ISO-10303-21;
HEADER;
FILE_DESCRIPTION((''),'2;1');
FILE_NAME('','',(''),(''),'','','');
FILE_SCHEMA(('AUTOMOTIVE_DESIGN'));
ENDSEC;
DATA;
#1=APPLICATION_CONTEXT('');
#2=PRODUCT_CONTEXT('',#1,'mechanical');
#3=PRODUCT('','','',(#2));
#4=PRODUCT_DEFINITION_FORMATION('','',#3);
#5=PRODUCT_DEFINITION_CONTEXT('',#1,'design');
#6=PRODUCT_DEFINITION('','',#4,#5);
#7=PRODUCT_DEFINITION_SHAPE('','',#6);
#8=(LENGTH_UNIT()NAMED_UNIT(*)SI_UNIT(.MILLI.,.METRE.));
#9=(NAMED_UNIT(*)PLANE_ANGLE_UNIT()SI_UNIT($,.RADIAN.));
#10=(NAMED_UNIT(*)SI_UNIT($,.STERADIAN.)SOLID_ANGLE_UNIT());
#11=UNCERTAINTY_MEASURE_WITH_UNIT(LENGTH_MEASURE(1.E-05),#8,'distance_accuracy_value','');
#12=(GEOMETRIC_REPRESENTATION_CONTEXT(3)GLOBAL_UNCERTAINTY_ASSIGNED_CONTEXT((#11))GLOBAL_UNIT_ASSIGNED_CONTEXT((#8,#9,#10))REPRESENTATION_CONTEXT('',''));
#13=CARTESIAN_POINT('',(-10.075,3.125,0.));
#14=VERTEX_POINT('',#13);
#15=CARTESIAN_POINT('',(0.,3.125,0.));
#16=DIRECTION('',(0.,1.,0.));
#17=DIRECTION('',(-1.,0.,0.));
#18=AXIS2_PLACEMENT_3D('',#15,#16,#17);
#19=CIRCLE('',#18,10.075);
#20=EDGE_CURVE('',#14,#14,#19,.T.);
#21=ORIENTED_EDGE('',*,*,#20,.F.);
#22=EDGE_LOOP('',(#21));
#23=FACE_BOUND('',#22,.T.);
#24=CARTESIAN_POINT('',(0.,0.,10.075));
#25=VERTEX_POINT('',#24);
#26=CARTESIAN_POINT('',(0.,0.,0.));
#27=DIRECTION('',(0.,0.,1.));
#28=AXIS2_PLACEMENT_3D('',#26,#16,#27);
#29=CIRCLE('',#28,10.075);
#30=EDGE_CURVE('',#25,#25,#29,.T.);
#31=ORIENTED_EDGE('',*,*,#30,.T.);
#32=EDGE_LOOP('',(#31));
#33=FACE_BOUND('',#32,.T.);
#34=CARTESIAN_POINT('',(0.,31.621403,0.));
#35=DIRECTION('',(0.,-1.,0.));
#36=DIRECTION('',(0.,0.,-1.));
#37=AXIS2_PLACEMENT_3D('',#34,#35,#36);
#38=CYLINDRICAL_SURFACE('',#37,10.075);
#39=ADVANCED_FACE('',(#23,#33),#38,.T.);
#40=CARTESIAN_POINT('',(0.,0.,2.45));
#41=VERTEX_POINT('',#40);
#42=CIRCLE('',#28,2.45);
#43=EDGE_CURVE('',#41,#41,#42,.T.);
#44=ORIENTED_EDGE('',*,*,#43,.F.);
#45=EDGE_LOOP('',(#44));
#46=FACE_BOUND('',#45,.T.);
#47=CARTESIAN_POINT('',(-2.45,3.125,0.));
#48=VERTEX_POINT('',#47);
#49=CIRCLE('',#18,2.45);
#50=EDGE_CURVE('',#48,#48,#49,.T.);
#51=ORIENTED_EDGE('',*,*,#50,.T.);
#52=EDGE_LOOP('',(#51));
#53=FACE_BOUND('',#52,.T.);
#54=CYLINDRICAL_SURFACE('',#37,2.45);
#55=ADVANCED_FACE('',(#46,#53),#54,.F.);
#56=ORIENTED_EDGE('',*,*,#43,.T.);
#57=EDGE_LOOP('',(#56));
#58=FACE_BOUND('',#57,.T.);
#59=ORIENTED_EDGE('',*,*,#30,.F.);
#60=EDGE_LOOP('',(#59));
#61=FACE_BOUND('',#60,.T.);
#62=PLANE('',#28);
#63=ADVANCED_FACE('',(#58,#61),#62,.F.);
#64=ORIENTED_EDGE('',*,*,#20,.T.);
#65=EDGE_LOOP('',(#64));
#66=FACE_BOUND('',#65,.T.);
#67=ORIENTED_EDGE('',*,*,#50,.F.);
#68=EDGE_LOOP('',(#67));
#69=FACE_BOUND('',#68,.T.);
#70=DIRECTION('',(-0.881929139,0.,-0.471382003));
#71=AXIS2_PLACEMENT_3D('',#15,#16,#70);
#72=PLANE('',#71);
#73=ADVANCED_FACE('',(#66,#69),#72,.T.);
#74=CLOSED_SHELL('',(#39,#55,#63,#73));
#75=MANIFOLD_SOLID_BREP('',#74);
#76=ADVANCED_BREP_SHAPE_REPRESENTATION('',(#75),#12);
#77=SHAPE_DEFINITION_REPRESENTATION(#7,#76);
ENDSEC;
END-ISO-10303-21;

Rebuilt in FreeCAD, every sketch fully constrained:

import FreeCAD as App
import Part
import Sketcher
from FreeCAD import Vector

doc = App.newDocument("Part")
body = doc.addObject("PartDesign::Body", "Body")

# Sketch on XZ plane
sketch1 = body.newObject("Sketcher::SketchObject", "Sketch")
sketch1.AttachmentSupport = (doc.getObject("XZ_Plane"), [""])
sketch1.MapMode = "FlatFace"
sketch1.addGeometry([
    Part.Circle(Vector(0, 0, 0), Vector(0, 0, 1), 10.1),
    Part.Circle(Vector(0, 0, 0), Vector(0, 0, 1), 2.5),
], False)
sketch1.addConstraint([
    Sketcher.Constraint("Coincident", 0, 3, -1, 1),
    Sketcher.Constraint("Coincident", 1, 3, -1, 1),
    Sketcher.Constraint("Diameter", 1, 4.9),
    Sketcher.Constraint("Diameter", 0, 20.15),
])
pad1 = body.newObject("PartDesign::Pad", "Pad")
pad1.Profile = sketch1
pad1.Length = 3.125
pad1.Reversed = True

doc.recompute()
